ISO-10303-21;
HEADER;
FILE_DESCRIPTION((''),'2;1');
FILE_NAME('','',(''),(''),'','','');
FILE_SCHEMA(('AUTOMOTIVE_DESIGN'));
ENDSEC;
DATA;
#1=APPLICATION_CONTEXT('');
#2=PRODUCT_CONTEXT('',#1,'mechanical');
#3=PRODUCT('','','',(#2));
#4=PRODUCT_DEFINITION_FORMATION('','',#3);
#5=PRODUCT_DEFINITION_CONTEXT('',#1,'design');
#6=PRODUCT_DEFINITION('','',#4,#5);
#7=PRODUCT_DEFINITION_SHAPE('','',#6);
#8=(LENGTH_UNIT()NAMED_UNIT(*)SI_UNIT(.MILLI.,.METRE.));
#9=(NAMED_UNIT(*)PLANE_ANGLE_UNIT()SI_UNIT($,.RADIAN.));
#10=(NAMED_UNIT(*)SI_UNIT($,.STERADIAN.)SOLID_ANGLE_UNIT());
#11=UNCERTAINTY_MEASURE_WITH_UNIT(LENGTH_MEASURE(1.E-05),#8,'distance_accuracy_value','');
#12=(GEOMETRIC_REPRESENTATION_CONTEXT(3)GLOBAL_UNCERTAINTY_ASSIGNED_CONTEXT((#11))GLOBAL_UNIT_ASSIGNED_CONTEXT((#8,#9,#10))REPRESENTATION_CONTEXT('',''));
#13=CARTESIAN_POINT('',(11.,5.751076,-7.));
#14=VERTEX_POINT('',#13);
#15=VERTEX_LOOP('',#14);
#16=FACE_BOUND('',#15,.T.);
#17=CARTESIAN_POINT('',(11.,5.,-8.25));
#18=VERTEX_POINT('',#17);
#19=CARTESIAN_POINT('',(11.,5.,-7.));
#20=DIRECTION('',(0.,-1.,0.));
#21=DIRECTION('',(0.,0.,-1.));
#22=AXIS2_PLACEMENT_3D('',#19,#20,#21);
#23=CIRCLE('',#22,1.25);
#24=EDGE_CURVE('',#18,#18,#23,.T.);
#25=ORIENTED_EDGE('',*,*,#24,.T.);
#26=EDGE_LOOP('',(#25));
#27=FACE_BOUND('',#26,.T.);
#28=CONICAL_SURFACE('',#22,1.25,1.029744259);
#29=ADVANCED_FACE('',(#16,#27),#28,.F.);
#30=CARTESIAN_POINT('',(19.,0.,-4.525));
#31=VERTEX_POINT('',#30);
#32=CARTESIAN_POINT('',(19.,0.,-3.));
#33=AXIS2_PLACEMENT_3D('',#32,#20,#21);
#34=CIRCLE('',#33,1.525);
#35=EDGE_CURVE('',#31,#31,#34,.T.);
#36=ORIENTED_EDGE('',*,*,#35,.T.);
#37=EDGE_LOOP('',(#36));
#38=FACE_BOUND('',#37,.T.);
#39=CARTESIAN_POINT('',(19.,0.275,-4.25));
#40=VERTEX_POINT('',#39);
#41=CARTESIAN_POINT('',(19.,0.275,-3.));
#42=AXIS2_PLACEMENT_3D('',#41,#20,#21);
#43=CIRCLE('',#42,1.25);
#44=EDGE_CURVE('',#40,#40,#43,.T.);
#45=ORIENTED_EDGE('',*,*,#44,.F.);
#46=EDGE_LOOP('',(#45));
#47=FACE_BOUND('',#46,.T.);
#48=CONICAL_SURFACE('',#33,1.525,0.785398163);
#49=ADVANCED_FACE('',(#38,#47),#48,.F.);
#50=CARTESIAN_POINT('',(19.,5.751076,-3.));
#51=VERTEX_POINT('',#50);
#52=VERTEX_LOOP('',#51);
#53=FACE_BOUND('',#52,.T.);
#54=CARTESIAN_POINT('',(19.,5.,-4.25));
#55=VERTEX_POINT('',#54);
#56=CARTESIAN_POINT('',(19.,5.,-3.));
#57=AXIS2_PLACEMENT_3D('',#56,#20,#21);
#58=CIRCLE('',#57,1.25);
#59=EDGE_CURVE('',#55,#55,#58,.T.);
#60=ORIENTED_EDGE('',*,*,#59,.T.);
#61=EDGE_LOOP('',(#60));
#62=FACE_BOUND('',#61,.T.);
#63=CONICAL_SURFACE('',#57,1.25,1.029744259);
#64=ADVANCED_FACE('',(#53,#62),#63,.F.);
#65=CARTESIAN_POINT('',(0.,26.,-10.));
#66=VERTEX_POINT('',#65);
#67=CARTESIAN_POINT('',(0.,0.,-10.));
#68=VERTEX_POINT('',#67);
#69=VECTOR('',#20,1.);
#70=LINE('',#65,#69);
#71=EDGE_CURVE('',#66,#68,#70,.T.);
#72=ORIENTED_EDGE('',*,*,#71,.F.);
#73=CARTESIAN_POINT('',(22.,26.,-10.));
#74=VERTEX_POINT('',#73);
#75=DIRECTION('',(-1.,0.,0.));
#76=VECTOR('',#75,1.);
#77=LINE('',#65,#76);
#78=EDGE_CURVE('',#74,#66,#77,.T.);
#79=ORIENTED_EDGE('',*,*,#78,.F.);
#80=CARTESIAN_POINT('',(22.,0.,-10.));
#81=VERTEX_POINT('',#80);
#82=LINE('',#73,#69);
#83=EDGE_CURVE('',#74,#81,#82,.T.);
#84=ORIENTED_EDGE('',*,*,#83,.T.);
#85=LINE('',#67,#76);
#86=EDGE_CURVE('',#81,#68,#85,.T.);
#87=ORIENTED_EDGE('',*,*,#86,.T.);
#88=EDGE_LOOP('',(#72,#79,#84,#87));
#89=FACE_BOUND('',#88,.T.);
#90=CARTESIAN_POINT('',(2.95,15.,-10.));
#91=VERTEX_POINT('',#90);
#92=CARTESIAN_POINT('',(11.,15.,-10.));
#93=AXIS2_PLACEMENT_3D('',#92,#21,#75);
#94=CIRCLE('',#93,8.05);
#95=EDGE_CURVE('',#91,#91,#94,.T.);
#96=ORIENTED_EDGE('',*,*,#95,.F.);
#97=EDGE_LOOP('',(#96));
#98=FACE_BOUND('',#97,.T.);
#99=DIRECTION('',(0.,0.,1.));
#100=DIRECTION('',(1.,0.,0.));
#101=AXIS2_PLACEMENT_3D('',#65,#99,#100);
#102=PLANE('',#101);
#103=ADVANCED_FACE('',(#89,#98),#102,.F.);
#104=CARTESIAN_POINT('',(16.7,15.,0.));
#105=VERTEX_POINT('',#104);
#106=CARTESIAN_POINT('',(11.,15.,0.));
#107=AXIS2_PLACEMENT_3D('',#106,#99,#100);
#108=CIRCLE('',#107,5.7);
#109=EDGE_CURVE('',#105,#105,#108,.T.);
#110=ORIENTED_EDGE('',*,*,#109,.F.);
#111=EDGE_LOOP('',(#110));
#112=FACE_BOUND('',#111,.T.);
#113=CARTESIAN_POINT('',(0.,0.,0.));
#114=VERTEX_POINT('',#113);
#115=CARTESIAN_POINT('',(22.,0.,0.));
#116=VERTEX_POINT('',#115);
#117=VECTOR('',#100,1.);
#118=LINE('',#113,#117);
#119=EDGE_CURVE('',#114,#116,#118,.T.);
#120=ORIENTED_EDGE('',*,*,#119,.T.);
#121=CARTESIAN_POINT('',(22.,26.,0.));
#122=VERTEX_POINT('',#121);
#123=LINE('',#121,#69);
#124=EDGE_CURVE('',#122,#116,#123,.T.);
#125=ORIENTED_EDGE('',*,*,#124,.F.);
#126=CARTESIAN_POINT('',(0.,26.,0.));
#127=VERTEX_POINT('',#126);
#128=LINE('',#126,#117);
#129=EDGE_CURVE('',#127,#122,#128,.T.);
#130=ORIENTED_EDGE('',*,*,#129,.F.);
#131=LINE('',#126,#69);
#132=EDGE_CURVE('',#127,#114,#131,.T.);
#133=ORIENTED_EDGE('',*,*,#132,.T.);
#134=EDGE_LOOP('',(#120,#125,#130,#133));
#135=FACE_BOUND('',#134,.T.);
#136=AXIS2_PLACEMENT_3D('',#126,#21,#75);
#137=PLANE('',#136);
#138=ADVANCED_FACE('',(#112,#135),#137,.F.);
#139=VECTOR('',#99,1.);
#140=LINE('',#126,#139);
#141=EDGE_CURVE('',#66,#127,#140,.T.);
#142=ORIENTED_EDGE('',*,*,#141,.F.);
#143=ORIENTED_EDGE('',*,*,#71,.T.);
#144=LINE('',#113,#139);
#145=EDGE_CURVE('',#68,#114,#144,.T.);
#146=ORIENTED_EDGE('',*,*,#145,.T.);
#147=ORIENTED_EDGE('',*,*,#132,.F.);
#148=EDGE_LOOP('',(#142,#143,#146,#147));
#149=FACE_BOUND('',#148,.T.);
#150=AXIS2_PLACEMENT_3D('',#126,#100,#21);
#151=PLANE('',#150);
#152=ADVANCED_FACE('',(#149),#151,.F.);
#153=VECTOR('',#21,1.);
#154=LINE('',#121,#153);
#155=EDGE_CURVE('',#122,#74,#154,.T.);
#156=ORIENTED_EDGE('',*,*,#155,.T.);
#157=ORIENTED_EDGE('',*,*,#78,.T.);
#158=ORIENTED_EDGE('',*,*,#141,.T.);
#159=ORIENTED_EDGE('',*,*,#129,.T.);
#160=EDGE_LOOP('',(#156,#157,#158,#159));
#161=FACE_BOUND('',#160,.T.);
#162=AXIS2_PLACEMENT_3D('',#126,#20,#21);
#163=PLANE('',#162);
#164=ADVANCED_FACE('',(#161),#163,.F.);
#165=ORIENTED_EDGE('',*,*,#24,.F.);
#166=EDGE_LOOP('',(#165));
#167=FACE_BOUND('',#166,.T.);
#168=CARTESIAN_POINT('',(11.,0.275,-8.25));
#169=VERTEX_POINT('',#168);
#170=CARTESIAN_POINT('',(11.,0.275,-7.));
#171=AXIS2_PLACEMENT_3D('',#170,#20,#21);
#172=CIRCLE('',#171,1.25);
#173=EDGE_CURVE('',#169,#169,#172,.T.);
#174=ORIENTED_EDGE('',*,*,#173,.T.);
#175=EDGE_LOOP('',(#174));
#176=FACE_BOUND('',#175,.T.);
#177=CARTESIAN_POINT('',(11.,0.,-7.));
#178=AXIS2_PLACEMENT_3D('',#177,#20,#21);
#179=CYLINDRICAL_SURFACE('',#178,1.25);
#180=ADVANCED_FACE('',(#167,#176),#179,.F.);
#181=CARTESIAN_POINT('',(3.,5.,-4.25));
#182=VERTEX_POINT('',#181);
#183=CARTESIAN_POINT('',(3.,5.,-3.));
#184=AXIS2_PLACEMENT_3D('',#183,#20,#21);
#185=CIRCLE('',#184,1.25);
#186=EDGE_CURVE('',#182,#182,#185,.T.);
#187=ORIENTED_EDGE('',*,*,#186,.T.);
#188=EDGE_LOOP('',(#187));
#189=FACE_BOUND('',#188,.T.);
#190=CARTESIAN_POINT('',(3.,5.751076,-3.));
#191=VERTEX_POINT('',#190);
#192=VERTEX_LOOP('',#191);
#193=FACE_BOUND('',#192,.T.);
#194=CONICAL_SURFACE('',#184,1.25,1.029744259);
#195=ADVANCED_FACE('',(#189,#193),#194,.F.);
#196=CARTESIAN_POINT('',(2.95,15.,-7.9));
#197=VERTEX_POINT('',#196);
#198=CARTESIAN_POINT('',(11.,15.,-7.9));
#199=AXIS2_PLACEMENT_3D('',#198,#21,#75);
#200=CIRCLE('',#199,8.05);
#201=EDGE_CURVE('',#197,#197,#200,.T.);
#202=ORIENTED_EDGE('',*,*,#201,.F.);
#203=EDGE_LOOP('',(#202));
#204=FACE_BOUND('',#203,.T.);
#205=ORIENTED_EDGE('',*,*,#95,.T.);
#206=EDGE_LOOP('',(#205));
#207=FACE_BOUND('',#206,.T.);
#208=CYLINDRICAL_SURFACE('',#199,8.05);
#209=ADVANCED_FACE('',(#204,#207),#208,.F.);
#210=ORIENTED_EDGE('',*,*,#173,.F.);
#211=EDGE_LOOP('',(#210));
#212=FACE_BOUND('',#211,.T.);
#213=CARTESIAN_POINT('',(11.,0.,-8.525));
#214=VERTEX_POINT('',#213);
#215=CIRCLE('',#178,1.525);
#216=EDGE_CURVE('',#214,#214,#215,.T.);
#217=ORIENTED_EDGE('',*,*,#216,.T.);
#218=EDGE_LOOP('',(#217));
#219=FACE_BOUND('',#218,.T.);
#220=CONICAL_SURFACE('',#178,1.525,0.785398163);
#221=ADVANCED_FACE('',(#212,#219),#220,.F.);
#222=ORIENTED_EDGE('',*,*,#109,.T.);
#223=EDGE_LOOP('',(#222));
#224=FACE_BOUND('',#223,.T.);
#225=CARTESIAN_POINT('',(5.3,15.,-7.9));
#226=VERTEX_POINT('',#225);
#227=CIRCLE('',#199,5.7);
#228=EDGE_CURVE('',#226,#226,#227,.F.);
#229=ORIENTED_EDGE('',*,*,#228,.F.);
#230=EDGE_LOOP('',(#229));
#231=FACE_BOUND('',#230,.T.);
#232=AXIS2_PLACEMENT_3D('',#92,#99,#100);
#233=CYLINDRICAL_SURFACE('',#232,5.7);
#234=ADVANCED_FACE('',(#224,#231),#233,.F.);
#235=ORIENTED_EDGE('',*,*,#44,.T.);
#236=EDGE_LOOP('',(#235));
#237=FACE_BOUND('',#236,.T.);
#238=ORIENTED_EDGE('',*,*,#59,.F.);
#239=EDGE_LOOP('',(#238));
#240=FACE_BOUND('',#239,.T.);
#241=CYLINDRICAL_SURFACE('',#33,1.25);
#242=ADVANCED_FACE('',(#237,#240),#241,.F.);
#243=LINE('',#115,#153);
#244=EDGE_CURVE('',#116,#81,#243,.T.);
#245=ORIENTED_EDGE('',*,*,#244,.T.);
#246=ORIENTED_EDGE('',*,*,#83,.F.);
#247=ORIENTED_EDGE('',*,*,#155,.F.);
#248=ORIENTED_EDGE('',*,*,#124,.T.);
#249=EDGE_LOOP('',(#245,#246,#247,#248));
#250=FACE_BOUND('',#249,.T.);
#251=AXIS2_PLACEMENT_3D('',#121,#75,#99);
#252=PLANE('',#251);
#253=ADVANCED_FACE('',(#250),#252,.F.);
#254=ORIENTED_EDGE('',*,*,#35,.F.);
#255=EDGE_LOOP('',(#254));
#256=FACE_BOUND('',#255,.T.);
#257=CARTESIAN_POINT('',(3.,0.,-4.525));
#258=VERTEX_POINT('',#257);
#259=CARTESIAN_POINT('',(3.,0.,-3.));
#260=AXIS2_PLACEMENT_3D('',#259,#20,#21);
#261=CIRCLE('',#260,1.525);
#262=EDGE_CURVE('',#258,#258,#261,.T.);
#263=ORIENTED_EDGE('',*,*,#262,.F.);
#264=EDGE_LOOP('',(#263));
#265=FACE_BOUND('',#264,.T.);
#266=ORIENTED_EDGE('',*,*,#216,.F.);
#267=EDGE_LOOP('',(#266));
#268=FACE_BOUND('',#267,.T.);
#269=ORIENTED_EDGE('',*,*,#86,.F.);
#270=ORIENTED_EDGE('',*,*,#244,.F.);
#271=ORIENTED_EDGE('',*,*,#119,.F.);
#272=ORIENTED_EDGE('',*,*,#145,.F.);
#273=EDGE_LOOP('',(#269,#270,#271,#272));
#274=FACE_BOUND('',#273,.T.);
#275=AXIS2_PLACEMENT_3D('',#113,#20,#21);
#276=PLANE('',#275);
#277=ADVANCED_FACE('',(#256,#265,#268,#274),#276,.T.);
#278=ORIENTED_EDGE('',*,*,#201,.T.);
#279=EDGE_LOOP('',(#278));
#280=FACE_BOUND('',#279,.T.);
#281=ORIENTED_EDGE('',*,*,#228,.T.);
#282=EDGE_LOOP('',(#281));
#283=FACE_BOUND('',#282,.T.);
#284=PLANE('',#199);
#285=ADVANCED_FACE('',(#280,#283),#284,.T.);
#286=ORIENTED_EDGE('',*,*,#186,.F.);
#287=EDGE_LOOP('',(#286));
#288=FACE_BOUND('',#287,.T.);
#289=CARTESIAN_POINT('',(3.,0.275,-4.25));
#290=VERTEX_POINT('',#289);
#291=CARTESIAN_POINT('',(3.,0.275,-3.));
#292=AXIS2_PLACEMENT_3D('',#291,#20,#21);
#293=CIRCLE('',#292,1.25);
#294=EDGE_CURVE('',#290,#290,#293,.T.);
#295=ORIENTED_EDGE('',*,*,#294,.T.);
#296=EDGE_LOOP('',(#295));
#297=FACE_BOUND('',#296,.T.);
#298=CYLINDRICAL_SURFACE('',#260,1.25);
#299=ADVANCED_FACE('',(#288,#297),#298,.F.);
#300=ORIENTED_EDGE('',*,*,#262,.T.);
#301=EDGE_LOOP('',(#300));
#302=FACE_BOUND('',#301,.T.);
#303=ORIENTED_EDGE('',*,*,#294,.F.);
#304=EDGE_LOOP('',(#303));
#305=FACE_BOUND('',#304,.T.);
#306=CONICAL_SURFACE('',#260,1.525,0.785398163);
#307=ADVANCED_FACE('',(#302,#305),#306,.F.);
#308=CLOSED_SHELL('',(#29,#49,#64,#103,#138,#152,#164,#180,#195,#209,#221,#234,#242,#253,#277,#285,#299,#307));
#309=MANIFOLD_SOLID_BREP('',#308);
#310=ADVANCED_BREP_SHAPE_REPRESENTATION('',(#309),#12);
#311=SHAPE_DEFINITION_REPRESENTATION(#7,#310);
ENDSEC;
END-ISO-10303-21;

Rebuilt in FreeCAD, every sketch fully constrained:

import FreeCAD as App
import Part
import Sketcher
from FreeCAD import Vector
Q = App.Units.Quantity

doc = App.newDocument("Part")
body = doc.addObject("PartDesign::Body", "Body")

# Sketch on XZ plane
sketch1 = doc.addObject("Sketcher::SketchObject", "Sketch")
body.addObject(sketch1)
sketch1.AttachmentSupport = (doc.XZ_Plane, [""])
sketch1.MapMode = "FlatFace"
sketch1.addGeometry(Part.LineSegment(Vector(0, -10, 0), Vector(0, 0, 0)), False)
sketch1.addGeometry(Part.LineSegment(Vector(0, 0, 0), Vector(22, 0, 0)), False)
sketch1.addGeometry(Part.LineSegment(Vector(22, 0, 0), Vector(22, -10, 0)), False)
sketch1.addGeometry(Part.LineSegment(Vector(22, -10, 0), Vector(0, -10, 0)), False)
sketch1.addConstraint(Sketcher.Constraint("Coincident", 0, 2, 1, 1))
sketch1.addConstraint(Sketcher.Constraint("Coincident", 1, 2, 2, 1))
sketch1.addConstraint(Sketcher.Constraint("Coincident", 2, 2, 3, 1))
sketch1.addConstraint(Sketcher.Constraint("Coincident", 3, 2, 0, 1))
sketch1.addConstraint(Sketcher.Constraint("Vertical", 0))
sketch1.addConstraint(Sketcher.Constraint("Horizontal", 1))
sketch1.addConstraint(Sketcher.Constraint("Vertical", 2))
sketch1.addConstraint(Sketcher.Constraint("Horizontal", 3))
sketch1.addConstraint(Sketcher.Constraint("Coincident", 0, 2, -1, 1))
sketch1.addConstraint(Sketcher.Constraint("DistanceX", 1, 1, 1, 2, Q("22 mm")))
sketch1.addConstraint(Sketcher.Constraint("DistanceY", 0, 1, 0, 2, Q("10 mm")))
pad1 = doc.addObject("PartDesign::Pad", "Pad")
body.addObject(pad1)
pad1.Profile = sketch1
pad1.Length = 26
pad1.Reversed = True

# Sketch on XY plane
sketch2 = doc.addObject("Sketcher::SketchObject", "Sketch001")
body.addObject(sketch2)
sketch2.AttachmentSupport = (doc.XY_Plane, [""])
sketch2.MapMode = "FlatFace"
sketch2.addGeometry(Part.Circle(Vector(11, 15, 0), Vector(0, 0, 1), 5.7), False)
sketch2.addConstraint(Sketcher.Constraint("Diameter", 0, Q("11.4 mm")))
sketch2.addConstraint(Sketcher.Constraint("DistanceX", -1, 1, 0, 3, Q("11 mm")))
sketch2.addConstraint(Sketcher.Constraint("DistanceY", -1, 1, 0, 3, Q("15 mm")))
pocket1 = doc.addObject("PartDesign::Pocket", "Pocket")
body.addObject(pocket1)
pocket1.Profile = sketch2
pocket1.Type = "ThroughAll"

# Sketch on XY plane
sketch3 = doc.addObject("Sketcher::SketchObject", "Sketch002")
body.addObject(sketch3)
sketch3.AttachmentSupport = (doc.XY_Plane, [""])
sketch3.MapMode = "FlatFace"
sketch3.AttachmentOffset = App.Placement(Vector(0, 0, -10), App.Rotation())
sketch3.addGeometry(Part.Circle(Vector(11, 15, 0), Vector(0, 0, 1), 8.05), False)
sketch3.addConstraint(Sketcher.Constraint("Diameter", 0, Q("16.1 mm")))
sketch3.addConstraint(Sketcher.Constraint("DistanceX", -1, 1, 0, 3, Q("11 mm")))
sketch3.addConstraint(Sketcher.Constraint("DistanceY", -1, 1, 0, 3, Q("15 mm")))
pocket2 = doc.addObject("PartDesign::Pocket", "Pocket001")
body.addObject(pocket2)
pocket2.Profile = sketch3
pocket2.Length = 2.1
pocket2.Reversed = True

# Sketch on XZ plane
sketch4 = doc.addObject("Sketcher::SketchObject", "Sketch003")
body.addObject(sketch4)
sketch4.AttachmentSupport = (doc.XZ_Plane, [""])
sketch4.MapMode = "FlatFace"
sketch4.addGeometry(Part.Circle(Vector(3, -3, 0), Vector(0, 0, 1), 1.25), False)
sketch4.addGeometry(Part.Circle(Vector(19, -3, 0), Vector(0, 0, 1), 1.25), False)
sketch4.addGeometry(Part.Circle(Vector(11, -7, 0), Vector(0, 0, 1), 1.25), False)
sketch4.addConstraint(Sketcher.Constraint("Equal", 0, 1))
sketch4.addConstraint(Sketcher.Constraint("Equal", 1, 2))
sketch4.addConstraint(Sketcher.Constraint("Horizontal", 0, 3, 1, 3))
sketch4.addConstraint(Sketcher.Constraint("Diameter", 0, Q("2.5 mm")))
sketch4.addConstraint(Sketcher.Constraint("DistanceX", -1, 1, 0, 3, Q("3 mm")))
sketch4.addConstraint(Sketcher.Constraint("DistanceY", 0, 3, -1, 1, Q("3 mm")))
sketch4.addConstraint(Sketcher.Constraint("DistanceX", -1, 1, 1, 3, Q("19 mm")))
sketch4.addConstraint(Sketcher.Constraint("DistanceX", -1, 1, 2, 3, Q("11 mm")))
sketch4.addConstraint(Sketcher.Constraint("DistanceY", 2, 3, -1, 1, Q("7 mm")))
doc.recompute()
hole = doc.addObject("PartDesign::Hole", "Hole")
body.addObject(hole)
hole.Profile = sketch4
hole.ThreadType = "None"
hole.Diameter = 2.5
hole.DepthType = "Dimension"
hole.Depth = 5
hole.DrillPoint = "Angled"
hole.DrillPointAngle = 118
hole.HoleCutType = "Countersink"
hole.HoleCutDiameter = 3.05
hole.HoleCutCountersinkAngle = 90

doc.recompute()
